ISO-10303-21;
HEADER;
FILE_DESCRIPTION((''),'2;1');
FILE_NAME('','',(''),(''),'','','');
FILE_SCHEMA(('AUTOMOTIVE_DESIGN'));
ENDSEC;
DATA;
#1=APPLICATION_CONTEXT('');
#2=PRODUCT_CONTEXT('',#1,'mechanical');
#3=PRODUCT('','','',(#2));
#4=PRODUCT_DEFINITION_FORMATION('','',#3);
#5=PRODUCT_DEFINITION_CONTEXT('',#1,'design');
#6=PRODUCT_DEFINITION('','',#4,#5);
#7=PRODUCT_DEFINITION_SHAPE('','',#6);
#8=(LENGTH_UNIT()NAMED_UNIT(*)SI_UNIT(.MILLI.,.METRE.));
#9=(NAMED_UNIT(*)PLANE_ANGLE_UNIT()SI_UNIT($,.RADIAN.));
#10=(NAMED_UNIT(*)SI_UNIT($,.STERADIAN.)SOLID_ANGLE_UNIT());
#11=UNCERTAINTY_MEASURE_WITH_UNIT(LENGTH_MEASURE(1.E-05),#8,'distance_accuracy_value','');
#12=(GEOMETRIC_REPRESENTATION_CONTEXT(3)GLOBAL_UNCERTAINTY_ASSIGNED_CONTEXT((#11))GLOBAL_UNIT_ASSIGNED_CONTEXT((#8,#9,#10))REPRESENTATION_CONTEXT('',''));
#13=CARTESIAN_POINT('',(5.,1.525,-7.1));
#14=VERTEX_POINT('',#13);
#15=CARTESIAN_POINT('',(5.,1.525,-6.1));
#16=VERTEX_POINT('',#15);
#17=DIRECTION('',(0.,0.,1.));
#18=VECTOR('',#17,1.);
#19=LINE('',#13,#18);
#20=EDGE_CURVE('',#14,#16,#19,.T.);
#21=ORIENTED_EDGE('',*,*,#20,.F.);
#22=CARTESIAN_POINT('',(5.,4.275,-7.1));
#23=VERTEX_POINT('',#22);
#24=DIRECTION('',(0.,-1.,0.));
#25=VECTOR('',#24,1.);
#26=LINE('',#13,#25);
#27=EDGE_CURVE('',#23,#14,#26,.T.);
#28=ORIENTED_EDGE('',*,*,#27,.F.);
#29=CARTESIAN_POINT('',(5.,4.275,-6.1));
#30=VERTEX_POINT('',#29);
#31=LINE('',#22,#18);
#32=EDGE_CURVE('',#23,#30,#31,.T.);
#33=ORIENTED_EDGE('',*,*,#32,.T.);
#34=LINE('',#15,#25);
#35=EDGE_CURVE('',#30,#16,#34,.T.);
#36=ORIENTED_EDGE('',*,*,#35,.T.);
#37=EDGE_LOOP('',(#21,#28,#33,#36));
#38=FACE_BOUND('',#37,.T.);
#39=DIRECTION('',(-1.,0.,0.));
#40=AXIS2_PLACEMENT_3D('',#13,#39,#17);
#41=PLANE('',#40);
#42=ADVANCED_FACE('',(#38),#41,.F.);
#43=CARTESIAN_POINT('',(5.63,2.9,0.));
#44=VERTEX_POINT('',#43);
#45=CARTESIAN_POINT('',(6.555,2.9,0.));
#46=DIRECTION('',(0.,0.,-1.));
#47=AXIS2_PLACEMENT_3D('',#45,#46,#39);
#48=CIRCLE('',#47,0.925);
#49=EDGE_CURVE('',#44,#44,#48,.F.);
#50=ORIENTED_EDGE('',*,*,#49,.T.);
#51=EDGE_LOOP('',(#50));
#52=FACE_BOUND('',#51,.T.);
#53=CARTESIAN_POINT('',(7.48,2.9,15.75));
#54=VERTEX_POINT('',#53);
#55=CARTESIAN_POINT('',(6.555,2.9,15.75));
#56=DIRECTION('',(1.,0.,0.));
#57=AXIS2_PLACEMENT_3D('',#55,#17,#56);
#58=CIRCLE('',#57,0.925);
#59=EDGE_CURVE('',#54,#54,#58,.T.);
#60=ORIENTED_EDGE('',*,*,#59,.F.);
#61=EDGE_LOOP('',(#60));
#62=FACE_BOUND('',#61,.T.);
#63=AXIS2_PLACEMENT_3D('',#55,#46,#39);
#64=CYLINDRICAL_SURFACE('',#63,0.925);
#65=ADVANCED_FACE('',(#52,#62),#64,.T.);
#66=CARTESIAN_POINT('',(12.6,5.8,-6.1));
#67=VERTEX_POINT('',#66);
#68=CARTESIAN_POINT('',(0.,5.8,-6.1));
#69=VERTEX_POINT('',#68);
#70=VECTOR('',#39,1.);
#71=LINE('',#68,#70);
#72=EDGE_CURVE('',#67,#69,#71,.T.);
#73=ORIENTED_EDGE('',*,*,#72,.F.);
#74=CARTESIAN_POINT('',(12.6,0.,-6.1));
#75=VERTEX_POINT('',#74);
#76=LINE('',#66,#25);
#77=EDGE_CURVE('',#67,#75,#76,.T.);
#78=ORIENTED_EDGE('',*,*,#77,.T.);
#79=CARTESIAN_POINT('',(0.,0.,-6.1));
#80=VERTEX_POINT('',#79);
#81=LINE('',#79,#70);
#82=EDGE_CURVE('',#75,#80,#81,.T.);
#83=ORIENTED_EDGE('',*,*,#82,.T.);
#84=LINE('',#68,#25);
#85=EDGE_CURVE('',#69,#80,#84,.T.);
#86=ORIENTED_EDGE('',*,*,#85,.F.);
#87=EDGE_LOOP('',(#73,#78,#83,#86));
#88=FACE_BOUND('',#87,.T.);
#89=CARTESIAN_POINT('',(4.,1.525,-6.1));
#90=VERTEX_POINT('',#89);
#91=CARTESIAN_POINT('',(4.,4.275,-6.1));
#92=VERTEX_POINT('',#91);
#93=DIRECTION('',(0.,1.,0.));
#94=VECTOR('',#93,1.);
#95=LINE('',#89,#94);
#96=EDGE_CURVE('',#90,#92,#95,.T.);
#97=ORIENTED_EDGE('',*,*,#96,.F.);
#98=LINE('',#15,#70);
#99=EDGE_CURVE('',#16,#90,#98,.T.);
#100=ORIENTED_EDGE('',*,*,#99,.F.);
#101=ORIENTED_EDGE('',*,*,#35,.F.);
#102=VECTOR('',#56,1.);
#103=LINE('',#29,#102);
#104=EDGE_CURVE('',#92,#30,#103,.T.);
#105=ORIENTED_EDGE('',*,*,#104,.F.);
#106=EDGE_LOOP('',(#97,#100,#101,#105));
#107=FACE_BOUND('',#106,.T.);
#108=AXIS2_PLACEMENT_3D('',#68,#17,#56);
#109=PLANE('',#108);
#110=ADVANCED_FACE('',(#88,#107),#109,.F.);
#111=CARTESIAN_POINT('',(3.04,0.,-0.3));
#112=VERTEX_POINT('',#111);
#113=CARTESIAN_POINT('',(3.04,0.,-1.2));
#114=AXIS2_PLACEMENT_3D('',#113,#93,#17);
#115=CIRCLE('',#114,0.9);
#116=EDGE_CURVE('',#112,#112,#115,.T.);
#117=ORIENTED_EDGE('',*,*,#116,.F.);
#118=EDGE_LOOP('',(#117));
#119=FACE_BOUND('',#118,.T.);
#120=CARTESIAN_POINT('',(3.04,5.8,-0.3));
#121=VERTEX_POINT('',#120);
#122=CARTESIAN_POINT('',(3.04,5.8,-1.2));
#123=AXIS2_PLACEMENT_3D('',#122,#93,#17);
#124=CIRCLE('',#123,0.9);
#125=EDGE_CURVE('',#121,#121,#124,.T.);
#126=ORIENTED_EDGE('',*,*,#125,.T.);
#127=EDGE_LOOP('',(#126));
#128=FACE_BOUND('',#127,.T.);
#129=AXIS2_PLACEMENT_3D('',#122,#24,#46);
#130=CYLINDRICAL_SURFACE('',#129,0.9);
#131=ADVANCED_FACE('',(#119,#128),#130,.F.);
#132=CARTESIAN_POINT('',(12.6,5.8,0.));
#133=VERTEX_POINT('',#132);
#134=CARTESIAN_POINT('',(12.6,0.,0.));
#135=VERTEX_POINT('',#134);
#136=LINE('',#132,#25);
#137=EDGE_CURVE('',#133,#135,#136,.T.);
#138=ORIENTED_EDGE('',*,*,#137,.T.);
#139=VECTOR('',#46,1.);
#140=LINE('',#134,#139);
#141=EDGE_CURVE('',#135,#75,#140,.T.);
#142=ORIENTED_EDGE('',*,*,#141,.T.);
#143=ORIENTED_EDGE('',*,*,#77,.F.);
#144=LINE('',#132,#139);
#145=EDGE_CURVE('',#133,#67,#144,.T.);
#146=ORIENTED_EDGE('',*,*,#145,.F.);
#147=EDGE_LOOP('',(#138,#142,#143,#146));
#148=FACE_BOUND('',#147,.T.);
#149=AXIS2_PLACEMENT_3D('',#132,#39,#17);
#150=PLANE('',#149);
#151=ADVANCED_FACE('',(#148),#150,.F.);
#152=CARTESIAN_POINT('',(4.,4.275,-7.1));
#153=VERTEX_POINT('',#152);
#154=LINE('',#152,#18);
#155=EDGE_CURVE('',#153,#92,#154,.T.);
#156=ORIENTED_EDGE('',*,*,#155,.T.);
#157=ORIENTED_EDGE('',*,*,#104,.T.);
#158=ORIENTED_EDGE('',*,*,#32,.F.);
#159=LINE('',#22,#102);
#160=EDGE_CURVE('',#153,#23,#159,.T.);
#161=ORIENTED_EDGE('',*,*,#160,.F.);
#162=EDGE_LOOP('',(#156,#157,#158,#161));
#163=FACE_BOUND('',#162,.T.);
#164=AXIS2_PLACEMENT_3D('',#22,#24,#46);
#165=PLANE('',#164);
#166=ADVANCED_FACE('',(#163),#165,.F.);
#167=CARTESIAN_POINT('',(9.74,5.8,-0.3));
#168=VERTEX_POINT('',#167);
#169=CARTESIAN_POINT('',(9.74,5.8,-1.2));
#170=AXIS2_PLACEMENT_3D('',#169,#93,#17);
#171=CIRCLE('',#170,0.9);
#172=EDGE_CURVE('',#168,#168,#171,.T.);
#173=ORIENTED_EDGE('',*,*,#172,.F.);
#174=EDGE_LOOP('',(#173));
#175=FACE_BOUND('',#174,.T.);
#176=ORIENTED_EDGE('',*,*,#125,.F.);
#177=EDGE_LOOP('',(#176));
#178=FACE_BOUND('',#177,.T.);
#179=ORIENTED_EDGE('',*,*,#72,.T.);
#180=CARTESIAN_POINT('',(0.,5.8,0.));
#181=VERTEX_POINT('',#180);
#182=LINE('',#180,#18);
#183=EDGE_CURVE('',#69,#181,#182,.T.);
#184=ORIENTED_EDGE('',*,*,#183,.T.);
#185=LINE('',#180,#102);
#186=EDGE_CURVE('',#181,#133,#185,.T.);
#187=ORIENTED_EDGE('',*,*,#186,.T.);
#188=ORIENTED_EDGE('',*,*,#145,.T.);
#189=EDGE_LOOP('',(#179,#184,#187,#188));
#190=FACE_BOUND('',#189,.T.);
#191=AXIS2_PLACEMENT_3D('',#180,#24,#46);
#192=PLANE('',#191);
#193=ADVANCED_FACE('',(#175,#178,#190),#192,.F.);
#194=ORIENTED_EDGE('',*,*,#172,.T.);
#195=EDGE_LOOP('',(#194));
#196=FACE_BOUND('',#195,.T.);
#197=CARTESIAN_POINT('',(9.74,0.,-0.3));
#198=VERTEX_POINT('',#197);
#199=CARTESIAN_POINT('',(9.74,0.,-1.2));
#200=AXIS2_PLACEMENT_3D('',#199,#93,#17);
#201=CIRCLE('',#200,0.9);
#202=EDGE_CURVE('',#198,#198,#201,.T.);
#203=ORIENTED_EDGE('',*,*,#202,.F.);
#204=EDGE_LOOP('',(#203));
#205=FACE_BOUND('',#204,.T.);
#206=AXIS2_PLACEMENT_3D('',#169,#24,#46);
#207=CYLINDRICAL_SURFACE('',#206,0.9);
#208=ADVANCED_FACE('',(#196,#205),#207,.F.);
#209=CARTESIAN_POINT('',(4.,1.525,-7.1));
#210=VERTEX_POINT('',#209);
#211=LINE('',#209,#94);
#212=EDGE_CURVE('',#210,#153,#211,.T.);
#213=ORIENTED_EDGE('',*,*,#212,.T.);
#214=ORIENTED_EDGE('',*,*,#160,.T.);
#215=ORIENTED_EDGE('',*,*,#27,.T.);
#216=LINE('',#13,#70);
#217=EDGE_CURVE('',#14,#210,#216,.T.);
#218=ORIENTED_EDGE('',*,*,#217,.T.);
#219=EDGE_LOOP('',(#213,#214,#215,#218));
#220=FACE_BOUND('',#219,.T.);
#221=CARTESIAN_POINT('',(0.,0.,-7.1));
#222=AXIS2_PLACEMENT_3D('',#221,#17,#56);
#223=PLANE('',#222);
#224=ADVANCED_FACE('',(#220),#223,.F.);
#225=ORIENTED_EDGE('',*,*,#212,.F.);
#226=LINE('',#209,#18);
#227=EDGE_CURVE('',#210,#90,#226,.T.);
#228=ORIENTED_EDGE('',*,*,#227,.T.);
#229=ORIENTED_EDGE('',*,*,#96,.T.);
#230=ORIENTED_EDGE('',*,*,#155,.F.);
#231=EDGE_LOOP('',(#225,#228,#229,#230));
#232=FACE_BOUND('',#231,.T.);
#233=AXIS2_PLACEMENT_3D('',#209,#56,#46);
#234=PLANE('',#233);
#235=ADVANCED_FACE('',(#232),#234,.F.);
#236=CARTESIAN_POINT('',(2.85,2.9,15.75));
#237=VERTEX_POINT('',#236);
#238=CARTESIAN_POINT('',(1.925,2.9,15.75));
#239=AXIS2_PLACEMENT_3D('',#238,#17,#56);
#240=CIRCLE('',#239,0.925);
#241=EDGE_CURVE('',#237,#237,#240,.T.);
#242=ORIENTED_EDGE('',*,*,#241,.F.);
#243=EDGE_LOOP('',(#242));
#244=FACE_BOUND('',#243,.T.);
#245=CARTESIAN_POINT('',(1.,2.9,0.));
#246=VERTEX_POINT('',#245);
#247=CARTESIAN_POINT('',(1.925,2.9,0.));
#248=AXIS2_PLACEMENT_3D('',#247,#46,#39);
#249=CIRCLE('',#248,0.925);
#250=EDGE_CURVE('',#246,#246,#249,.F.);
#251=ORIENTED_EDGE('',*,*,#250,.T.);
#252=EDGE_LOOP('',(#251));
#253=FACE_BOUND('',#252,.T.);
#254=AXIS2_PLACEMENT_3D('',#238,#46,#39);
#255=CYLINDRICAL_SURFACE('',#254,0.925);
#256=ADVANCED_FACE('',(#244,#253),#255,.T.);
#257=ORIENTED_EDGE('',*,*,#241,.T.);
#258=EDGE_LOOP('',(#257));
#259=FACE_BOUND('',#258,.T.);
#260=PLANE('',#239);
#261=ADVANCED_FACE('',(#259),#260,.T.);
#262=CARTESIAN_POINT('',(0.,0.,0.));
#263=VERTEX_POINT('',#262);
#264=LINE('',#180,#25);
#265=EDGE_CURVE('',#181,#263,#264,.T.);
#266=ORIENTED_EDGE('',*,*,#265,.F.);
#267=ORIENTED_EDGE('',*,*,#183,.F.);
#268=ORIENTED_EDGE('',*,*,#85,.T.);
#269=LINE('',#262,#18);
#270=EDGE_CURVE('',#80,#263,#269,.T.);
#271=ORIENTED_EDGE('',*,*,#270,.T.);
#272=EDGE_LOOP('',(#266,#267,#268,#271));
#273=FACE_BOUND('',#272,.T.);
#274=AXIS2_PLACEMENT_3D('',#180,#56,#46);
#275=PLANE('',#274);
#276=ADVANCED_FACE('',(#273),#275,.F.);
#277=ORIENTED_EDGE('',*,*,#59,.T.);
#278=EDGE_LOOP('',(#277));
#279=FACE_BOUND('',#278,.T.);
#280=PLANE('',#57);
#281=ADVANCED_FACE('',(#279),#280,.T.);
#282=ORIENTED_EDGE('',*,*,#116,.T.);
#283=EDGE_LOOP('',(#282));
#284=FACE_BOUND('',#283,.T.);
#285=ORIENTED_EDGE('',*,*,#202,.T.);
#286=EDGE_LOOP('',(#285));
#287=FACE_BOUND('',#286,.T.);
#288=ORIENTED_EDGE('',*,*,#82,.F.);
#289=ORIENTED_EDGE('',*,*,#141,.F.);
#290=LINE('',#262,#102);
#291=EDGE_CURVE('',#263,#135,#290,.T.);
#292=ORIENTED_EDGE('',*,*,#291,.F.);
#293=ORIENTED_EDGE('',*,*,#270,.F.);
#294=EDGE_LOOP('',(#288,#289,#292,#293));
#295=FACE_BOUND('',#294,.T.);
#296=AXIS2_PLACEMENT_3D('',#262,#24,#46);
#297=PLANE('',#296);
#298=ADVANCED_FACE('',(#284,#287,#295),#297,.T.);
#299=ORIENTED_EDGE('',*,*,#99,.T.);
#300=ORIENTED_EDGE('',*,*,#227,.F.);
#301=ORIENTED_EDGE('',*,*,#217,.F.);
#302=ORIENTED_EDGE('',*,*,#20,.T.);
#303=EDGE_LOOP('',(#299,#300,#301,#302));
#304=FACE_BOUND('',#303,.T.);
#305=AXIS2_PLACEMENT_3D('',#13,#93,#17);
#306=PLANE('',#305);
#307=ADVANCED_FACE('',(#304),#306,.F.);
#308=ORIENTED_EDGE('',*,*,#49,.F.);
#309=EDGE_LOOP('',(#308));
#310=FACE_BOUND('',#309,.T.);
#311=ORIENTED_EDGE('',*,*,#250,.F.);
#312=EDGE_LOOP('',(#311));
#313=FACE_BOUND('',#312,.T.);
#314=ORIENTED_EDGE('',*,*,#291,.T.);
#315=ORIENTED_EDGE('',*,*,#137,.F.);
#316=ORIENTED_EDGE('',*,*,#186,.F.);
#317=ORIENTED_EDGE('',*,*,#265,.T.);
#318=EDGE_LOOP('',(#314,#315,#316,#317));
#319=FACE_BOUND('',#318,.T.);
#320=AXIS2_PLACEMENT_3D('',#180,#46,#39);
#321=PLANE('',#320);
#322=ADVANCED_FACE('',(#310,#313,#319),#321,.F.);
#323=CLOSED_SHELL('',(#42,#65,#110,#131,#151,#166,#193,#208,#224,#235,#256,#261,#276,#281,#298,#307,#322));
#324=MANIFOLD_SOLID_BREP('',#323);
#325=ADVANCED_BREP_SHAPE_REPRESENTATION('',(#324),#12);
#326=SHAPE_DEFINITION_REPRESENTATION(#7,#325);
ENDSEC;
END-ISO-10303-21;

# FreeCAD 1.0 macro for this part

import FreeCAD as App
import Part
import Sketcher

doc = App.newDocument("Part")
body = doc.addObject("PartDesign::Body", "Body")

sketch1 = doc.addObject("Sketcher::SketchObject", "Sketch")
body.addObject(sketch1)
sketch1.AttachmentSupport = (doc.XZ_Plane, [""])
sketch1.MapMode = "FlatFace"
sketch1.addGeometry([
    Part.LineSegment(App.Vector(0, -6.1, 0), App.Vector(0, 0, 0)),
    Part.LineSegment(App.Vector(0, 0, 0), App.Vector(12.6, 0, 0)),
    Part.LineSegment(App.Vector(12.6, 0, 0), App.Vector(12.6, -6.1, 0)),
    Part.LineSegment(App.Vector(12.6, -6.1, 0), App.Vector(0, -6.1, 0)),
    Part.Circle(App.Vector(3, -1.2, 0), App.Vector(0, 0, 1), 0.9),
    Part.Circle(App.Vector(9.7, -1.2, 0), App.Vector(0, 0, 1), 0.9),
], False)
sketch1.addConstraint([
    Sketcher.Constraint("Coincident", 0, 2, 1, 1),
    Sketcher.Constraint("Coincident", 1, 2, 2, 1),
    Sketcher.Constraint("Coincident", 2, 2, 3, 1),
    Sketcher.Constraint("Coincident", 3, 2, 0, 1),
    Sketcher.Constraint("Vertical", 0),
    Sketcher.Constraint("Horizontal", 1),
    Sketcher.Constraint("Vertical", 2),
    Sketcher.Constraint("Horizontal", 3),
    Sketcher.Constraint("Coincident", 0, 2, -1, 1),
    Sketcher.Constraint("Equal", 4, 5),
    Sketcher.Constraint("Horizontal", 4, 3, 5, 3),
    Sketcher.Constraint("Diameter", 4, 1.8),
    Sketcher.Constraint("DistanceX", 1, 1, 1, 2, 12.6),
    Sketcher.Constraint("DistanceY", 0, 1, 0, 2, 6.1),
    Sketcher.Constraint("DistanceY", 4, 3, -1, 1, 1.2),
    Sketcher.Constraint("DistanceX", 4, 3, 5, 3, 6.7),
    Sketcher.Constraint("DistanceX", -1, 1, 4, 3, 3.04),
])
pad1 = doc.addObject("PartDesign::Pad", "Pad")
body.addObject(pad1)
pad1.Profile = sketch1
pad1.Length = 5.8
pad1.Reversed = True

sketch2 = doc.addObject("Sketcher::SketchObject", "Sketch001")
body.addObject(sketch2)
sketch2.AttachmentSupport = (doc.XY_Plane, [""])
sketch2.MapMode = "FlatFace"
sketch2.AttachmentOffset = App.Placement(App.Vector(0, 0, -6.1), App.Rotation())
sketch2.addGeometry([
    Part.LineSegment(App.Vector(5, 4.3, 0), App.Vector(5, 1.5, 0)),
    Part.LineSegment(App.Vector(5, 1.5, 0), App.Vector(4, 1.5, 0)),
    Part.LineSegment(App.Vector(4, 1.5, 0), App.Vector(4, 4.3, 0)),
    Part.LineSegment(App.Vector(4, 4.3, 0), App.Vector(5, 4.3, 0)),
], False)
sketch2.addConstraint([
    Sketcher.Constraint("Coincident", 0, 2, 1, 1),
    Sketcher.Constraint("Coincident", 1, 2, 2, 1),
    Sketcher.Constraint("Coincident", 2, 2, 3, 1),
    Sketcher.Constraint("Coincident", 3, 2, 0, 1),
    Sketcher.Constraint("Vertical", 0),
    Sketcher.Constraint("Horizontal", 1),
    Sketcher.Constraint("Vertical", 2),
    Sketcher.Constraint("Horizontal", 3),
    Sketcher.Constraint("DistanceX", 1, 2, 1, 1, 1.0),
    Sketcher.Constraint("DistanceX", -1, 1, 0, 2, 5.0),
    Sketcher.Constraint("DistanceY", 0, 2, 0, 1, 2.75),
    Sketcher.Constraint("DistanceY", -1, 1, 0, 2, 1.525),
])
pad2 = doc.addObject("PartDesign::Pad", "Pad001")
body.addObject(pad2)
pad2.Profile = sketch2
pad2.Length = 1
pad2.Reversed = True

sketch3 = doc.addObject("Sketcher::SketchObject", "Sketch002")
body.addObject(sketch3)
sketch3.AttachmentSupport = (doc.XY_Plane, [""])
sketch3.MapMode = "FlatFace"
sketch3.addGeometry([
    Part.Circle(App.Vector(1.9, 2.9, 0), App.Vector(0, 0, 1), 0.9),
    Part.Circle(App.Vector(6.6, 2.9, 0), App.Vector(0, 0, 1), 0.9),
], False)
sketch3.addConstraint([
    Sketcher.Constraint("Equal", 0, 1),
    Sketcher.Constraint("Horizontal", 0, 3, 1, 3),
    Sketcher.Constraint("Diameter", 0, 1.85),
    Sketcher.Constraint("DistanceY", -1, 1, 0, 3, 2.9),
    Sketcher.Constraint("DistanceX", 0, 3, 1, 3, 4.63),
    Sketcher.Constraint("DistanceX", -1, 1, 0, 3, 1.925),
])
pad3 = doc.addObject("PartDesign::Pad", "Pad002")
body.addObject(pad3)
pad3.Profile = sketch3
pad3.Length = 15.75

doc.recompute()
